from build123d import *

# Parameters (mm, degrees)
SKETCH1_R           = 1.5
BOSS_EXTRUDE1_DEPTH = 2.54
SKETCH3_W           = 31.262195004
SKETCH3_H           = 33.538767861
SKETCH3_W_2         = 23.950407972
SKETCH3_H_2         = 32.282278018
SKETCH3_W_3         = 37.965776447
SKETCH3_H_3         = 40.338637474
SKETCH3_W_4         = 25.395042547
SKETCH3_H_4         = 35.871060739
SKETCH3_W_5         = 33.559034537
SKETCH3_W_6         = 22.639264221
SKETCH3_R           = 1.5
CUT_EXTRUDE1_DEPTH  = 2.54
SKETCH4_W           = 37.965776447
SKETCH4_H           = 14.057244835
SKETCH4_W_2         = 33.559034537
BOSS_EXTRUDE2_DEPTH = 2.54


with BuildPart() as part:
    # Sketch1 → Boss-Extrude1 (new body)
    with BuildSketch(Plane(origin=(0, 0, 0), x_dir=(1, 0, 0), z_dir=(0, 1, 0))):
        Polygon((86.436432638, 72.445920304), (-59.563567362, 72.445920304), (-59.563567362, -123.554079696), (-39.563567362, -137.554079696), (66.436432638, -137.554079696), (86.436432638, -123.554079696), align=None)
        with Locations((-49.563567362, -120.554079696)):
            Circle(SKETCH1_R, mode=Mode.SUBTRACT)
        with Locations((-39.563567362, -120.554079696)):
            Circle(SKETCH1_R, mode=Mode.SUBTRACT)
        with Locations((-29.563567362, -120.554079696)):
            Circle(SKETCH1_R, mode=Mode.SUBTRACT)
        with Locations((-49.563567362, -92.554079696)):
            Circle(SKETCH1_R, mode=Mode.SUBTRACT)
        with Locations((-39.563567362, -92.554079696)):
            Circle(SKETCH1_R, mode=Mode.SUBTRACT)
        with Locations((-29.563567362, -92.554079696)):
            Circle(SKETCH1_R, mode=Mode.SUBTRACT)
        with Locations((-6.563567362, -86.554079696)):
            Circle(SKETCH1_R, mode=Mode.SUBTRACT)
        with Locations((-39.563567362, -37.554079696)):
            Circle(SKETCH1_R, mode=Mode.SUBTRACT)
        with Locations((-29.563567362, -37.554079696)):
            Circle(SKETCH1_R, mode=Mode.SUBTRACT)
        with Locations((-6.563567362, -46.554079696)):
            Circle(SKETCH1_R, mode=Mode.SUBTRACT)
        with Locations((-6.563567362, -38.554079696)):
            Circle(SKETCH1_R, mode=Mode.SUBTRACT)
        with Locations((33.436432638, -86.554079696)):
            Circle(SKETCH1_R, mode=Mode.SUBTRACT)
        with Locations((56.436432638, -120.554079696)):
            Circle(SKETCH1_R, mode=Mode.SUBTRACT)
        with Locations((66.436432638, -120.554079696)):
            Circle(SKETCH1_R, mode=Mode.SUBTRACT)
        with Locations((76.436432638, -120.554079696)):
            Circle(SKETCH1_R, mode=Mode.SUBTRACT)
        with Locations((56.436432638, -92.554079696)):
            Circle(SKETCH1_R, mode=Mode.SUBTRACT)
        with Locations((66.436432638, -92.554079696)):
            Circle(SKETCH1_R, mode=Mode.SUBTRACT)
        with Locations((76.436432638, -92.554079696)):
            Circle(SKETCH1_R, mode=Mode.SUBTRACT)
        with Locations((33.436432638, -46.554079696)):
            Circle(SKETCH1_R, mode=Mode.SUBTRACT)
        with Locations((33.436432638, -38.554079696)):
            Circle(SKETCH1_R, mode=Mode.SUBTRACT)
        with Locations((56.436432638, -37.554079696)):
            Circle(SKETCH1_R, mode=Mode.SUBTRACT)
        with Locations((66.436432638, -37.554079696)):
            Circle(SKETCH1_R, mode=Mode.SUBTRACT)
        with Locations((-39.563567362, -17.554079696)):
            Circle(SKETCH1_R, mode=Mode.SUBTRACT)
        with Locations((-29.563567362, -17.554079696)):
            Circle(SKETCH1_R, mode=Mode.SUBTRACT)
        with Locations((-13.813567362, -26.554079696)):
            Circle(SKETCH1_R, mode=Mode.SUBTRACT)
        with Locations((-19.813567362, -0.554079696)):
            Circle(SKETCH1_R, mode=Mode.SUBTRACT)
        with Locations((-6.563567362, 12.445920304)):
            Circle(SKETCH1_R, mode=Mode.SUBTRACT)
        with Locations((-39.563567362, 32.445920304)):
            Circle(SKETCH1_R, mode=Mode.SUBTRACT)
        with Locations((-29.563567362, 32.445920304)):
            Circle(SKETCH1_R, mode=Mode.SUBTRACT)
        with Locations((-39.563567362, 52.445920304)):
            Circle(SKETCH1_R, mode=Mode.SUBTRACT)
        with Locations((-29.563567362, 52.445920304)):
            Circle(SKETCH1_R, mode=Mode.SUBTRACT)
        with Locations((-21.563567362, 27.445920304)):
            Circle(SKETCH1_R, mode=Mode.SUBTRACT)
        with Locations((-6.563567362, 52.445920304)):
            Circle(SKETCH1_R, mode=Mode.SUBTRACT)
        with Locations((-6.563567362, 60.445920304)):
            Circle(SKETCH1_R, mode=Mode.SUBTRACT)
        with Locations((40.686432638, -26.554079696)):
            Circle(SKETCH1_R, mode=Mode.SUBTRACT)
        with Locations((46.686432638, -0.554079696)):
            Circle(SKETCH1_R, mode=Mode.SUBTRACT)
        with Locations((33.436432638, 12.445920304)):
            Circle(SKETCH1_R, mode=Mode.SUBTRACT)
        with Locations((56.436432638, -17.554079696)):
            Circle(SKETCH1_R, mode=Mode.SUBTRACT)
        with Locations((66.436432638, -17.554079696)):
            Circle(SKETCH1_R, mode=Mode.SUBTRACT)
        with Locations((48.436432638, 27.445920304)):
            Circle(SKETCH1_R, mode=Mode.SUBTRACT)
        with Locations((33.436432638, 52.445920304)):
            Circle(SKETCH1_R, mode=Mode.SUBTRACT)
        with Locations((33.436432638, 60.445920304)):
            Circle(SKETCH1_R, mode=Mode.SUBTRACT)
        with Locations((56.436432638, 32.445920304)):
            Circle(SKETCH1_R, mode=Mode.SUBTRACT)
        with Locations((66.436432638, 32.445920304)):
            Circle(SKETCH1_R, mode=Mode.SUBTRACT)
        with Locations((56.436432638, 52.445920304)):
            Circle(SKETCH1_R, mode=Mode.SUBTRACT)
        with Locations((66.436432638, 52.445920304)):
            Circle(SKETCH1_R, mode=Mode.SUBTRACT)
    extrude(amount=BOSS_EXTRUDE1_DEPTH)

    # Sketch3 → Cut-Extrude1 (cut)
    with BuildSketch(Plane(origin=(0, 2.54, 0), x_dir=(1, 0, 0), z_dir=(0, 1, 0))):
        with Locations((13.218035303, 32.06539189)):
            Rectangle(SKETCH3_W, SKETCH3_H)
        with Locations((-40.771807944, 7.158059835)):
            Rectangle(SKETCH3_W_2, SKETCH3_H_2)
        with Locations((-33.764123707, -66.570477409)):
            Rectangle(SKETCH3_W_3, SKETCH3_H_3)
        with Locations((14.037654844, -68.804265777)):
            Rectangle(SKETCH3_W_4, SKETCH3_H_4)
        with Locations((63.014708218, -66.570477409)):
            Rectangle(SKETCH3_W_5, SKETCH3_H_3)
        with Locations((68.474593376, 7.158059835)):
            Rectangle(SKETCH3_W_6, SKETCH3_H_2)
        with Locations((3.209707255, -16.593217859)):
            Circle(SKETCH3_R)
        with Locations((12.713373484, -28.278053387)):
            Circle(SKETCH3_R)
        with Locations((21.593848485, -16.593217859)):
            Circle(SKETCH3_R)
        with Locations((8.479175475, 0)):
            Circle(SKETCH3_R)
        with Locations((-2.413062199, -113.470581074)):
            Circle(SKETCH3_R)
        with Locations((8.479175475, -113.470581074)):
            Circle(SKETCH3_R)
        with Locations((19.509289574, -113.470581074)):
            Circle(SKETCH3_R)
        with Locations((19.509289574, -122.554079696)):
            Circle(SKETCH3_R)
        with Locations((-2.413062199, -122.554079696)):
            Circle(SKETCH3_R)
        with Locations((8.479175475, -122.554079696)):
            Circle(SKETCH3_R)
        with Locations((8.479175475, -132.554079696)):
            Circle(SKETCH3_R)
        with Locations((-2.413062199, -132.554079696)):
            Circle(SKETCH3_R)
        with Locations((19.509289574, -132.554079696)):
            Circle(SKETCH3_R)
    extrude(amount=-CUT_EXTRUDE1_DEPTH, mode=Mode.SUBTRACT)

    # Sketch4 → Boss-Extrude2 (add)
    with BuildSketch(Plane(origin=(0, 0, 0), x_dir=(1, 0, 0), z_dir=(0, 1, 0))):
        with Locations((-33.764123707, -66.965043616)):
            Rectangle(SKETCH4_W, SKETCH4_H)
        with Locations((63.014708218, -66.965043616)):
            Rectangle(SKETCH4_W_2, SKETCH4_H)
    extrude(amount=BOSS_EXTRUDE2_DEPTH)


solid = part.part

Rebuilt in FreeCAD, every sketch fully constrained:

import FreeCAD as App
import Part
import Sketcher
from FreeCAD import Vector
Q = App.Units.Quantity

doc = App.newDocument("Part")
body = doc.addObject("PartDesign::Body", "Body")

sketch1 = body.newObject("Sketcher::SketchObject", "Sketch")
sketch1.AttachmentSupport = (doc.getObject("XZ_Plane"), [""])
sketch1.MapMode = "FlatFace"
sketch1.addGeometry([
    Part.LineSegment(Vector(86.4, -72.4, 0), Vector(-59.6, -72.4, 0)),
    Part.LineSegment(Vector(-59.6, -72.4, 0), Vector(-59.6, 123.6, 0)),
    Part.LineSegment(Vector(-59.6, 123.6, 0), Vector(-39.6, 137.6, 0)),
    Part.LineSegment(Vector(-39.6, 137.6, 0), Vector(66.4, 137.6, 0)),
    Part.LineSegment(Vector(66.4, 137.6, 0), Vector(86.4, 123.6, 0)),
    Part.LineSegment(Vector(86.4, 123.6, 0), Vector(86.4, -72.4, 0)),
    Part.Circle(Vector(-49.6, 120.6, 0), Vector(0, 0, 1), 1.5),
    Part.Circle(Vector(-39.6, 120.6, 0), Vector(0, 0, 1), 1.5),
    Part.Circle(Vector(-29.6, 120.6, 0), Vector(0, 0, 1), 1.5),
    Part.Circle(Vector(-49.6, 92.6, 0), Vector(0, 0, 1), 1.5),
    Part.Circle(Vector(-39.6, 92.6, 0), Vector(0, 0, 1), 1.5),
    Part.Circle(Vector(-29.6, 92.6, 0), Vector(0, 0, 1), 1.5),
    Part.Circle(Vector(-6.6, 86.6, 0), Vector(0, 0, 1), 1.5),
    Part.Circle(Vector(-39.6, 37.6, 0), Vector(0, 0, 1), 1.5),
    Part.Circle(Vector(-29.6, 37.6, 0), Vector(0, 0, 1), 1.5),
    Part.Circle(Vector(-6.6, 46.6, 0), Vector(0, 0, 1), 1.5),
    Part.Circle(Vector(-6.6, 38.6, 0), Vector(0, 0, 1), 1.5),
    Part.Circle(Vector(33.4, 86.6, 0), Vector(0, 0, 1), 1.5),
    Part.Circle(Vector(56.4, 120.6, 0), Vector(0, 0, 1), 1.5),
    Part.Circle(Vector(66.4, 120.6, 0), Vector(0, 0, 1), 1.5),
    Part.Circle(Vector(76.4, 120.6, 0), Vector(0, 0, 1), 1.5),
    Part.Circle(Vector(56.4, 92.6, 0), Vector(0, 0, 1), 1.5),
    Part.Circle(Vector(66.4, 92.6, 0), Vector(0, 0, 1), 1.5),
    Part.Circle(Vector(76.4, 92.6, 0), Vector(0, 0, 1), 1.5),
    Part.Circle(Vector(33.4, 46.6, 0), Vector(0, 0, 1), 1.5),
    Part.Circle(Vector(33.4, 38.6, 0), Vector(0, 0, 1), 1.5),
    Part.Circle(Vector(56.4, 37.6, 0), Vector(0, 0, 1), 1.5),
    Part.Circle(Vector(66.4, 37.6, 0), Vector(0, 0, 1), 1.5),
    Part.Circle(Vector(-39.6, 17.6, 0), Vector(0, 0, 1), 1.5),
    Part.Circle(Vector(-29.6, 17.6, 0), Vector(0, 0, 1), 1.5),
    Part.Circle(Vector(-19.8, 0.6, 0), Vector(0, 0, 1), 1.5),
    Part.Circle(Vector(-13.8, 26.6, 0), Vector(0, 0, 1), 1.5),
    Part.Circle(Vector(-6.6, -12.4, 0), Vector(0, 0, 1), 1.5),
    Part.Circle(Vector(-39.6, -32.4, 0), Vector(0, 0, 1), 1.5),
    Part.Circle(Vector(-29.6, -32.4, 0), Vector(0, 0, 1), 1.5),
    Part.Circle(Vector(-21.6, -27.4, 0), Vector(0, 0, 1), 1.5),
    Part.Circle(Vector(-39.6, -52.4, 0), Vector(0, 0, 1), 1.5),
    Part.Circle(Vector(-29.6, -52.4, 0), Vector(0, 0, 1), 1.5),
    Part.Circle(Vector(-6.6, -52.4, 0), Vector(0, 0, 1), 1.5),
    Part.Circle(Vector(-6.6, -60.4, 0), Vector(0, 0, 1), 1.5),
    Part.Circle(Vector(40.7, 26.6, 0), Vector(0, 0, 1), 1.5),
    Part.Circle(Vector(33.4, -12.4, 0), Vector(0, 0, 1), 1.5),
    Part.Circle(Vector(56.4, 17.6, 0), Vector(0, 0, 1), 1.5),
    Part.Circle(Vector(66.4, 17.6, 0), Vector(0, 0, 1), 1.5),
    Part.Circle(Vector(46.7, 0.6, 0), Vector(0, 0, 1), 1.5),
    Part.Circle(Vector(33.4, -52.4, 0), Vector(0, 0, 1), 1.5),
    Part.Circle(Vector(33.4, -60.4, 0), Vector(0, 0, 1), 1.5),
    Part.Circle(Vector(48.4, -27.4, 0), Vector(0, 0, 1), 1.5),
    Part.Circle(Vector(56.4, -32.4, 0), Vector(0, 0, 1), 1.5),
    Part.Circle(Vector(66.4, -32.4, 0), Vector(0, 0, 1), 1.5),
    Part.Circle(Vector(56.4, -52.4, 0), Vector(0, 0, 1), 1.5),
    Part.Circle(Vector(66.4, -52.4, 0), Vector(0, 0, 1), 1.5),
], False)
sketch1.addConstraint([
    Sketcher.Constraint("Coincident", 0, 2, 1, 1),
    Sketcher.Constraint("Coincident", 1, 2, 2, 1),
    Sketcher.Constraint("Coincident", 2, 2, 3, 1),
    Sketcher.Constraint("Coincident", 3, 2, 4, 1),
    Sketcher.Constraint("Coincident", 4, 2, 5, 1),
    Sketcher.Constraint("Coincident", 5, 2, 0, 1),
    Sketcher.Constraint("Horizontal", 0),
    Sketcher.Constraint("Vertical", 1),
    Sketcher.Constraint("Horizontal", 3),
    Sketcher.Constraint("Vertical", 5),
    Sketcher.Constraint("Equal", 6, 7),
    Sketcher.Constraint("Equal", 7, 8),
    Sketcher.Constraint("Equal", 8, 9),
    Sketcher.Constraint("Equal", 9, 10),
    Sketcher.Constraint("Equal", 10, 11),
    Sketcher.Constraint("Equal", 11, 12),
    Sketcher.Constraint("Equal", 12, 13),
    Sketcher.Constraint("Equal", 13, 14),
    Sketcher.Constraint("Equal", 14, 15),
    Sketcher.Constraint("Equal", 15, 16),
    Sketcher.Constraint("Equal", 16, 17),
    Sketcher.Constraint("Equal", 17, 18),
    Sketcher.Constraint("Equal", 18, 19),
    Sketcher.Constraint("Equal", 19, 20),
    Sketcher.Constraint("Equal", 20, 21),
    Sketcher.Constraint("Equal", 21, 22),
    Sketcher.Constraint("Equal", 22, 23),
    Sketcher.Constraint("Equal", 23, 24),
    Sketcher.Constraint("Equal", 24, 25),
    Sketcher.Constraint("Equal", 25, 26),
    Sketcher.Constraint("Equal", 26, 27),
    Sketcher.Constraint("Equal", 27, 28),
    Sketcher.Constraint("Equal", 28, 29),
    Sketcher.Constraint("Equal", 29, 30),
    Sketcher.Constraint("Equal", 30, 31),
    Sketcher.Constraint("Equal", 31, 32),
    Sketcher.Constraint("Equal", 32, 33),
    Sketcher.Constraint("Equal", 33, 34),
    Sketcher.Constraint("Equal", 34, 35),
    Sketcher.Constraint("Equal", 35, 36),
    Sketcher.Constraint("Equal", 36, 37),
    Sketcher.Constraint("Equal", 37, 38),
    Sketcher.Constraint("Equal", 38, 39),
    Sketcher.Constraint("Equal", 39, 40),
    Sketcher.Constraint("Equal", 40, 41),
    Sketcher.Constraint("Equal", 41, 42),
    Sketcher.Constraint("Equal", 42, 43),
    Sketcher.Constraint("Equal", 43, 44),
    Sketcher.Constraint("Equal", 44, 45),
    Sketcher.Constraint("Equal", 45, 46),
    Sketcher.Constraint("Equal", 46, 47),
    Sketcher.Constraint("Equal", 47, 48),
    Sketcher.Constraint("Equal", 48, 49),
    Sketcher.Constraint("Equal", 49, 50),
    Sketcher.Constraint("Equal", 50, 51),
    Sketcher.Constraint("Horizontal", 6, 3, 7, 3),
    Sketcher.Constraint("Horizontal", 7, 3, 8, 3),
    Sketcher.Constraint("Horizontal", 9, 3, 10, 3),
    Sketcher.Constraint("Horizontal", 10, 3, 11, 3),
    Sketcher.Constraint("Horizontal", 13, 3, 14, 3),
    Sketcher.Constraint("Horizontal", 12, 3, 17, 3),
    Sketcher.Constraint("Horizontal", 8, 3, 18, 3),
    Sketcher.Constraint("Horizontal", 18, 3, 19, 3),
    Sketcher.Constraint("Horizontal", 19, 3, 20, 3),
    Sketcher.Constraint("Horizontal", 11, 3, 21, 3),
    Sketcher.Constraint("Horizontal", 21, 3, 22, 3),
    Sketcher.Constraint("Horizontal", 22, 3, 23, 3),
    Sketcher.Constraint("Horizontal", 15, 3, 24, 3),
    Sketcher.Constraint("Horizontal", 16, 3, 25, 3),
    Sketcher.Constraint("Horizontal", 14, 3, 26, 3),
    Sketcher.Constraint("Horizontal", 26, 3, 27, 3),
    Sketcher.Constraint("Horizontal", 28, 3, 29, 3),
    Sketcher.Constraint("Horizontal", 33, 3, 34, 3),
    Sketcher.Constraint("Horizontal", 36, 3, 37, 3),
    Sketcher.Constraint("Horizontal", 37, 3, 38, 3),
    Sketcher.Constraint("Horizontal", 31, 3, 40, 3),
    Sketcher.Constraint("Horizontal", 32, 3, 41, 3),
    Sketcher.Constraint("Horizontal", 29, 3, 42, 3),
    Sketcher.Constraint("Horizontal", 42, 3, 43, 3),
    Sketcher.Constraint("Horizontal", 30, 3, 44, 3),
    Sketcher.Constraint("Horizontal", 38, 3, 45, 3),
    Sketcher.Constraint("Horizontal", 39, 3, 46, 3),
    Sketcher.Constraint("Horizontal", 35, 3, 47, 3),
    Sketcher.Constraint("Horizontal", 34, 3, 48, 3),
    Sketcher.Constraint("Horizontal", 48, 3, 49, 3),
    Sketcher.Constraint("Horizontal", 45, 3, 50, 3),
    Sketcher.Constraint("Horizontal", 50, 3, 51, 3),
    Sketcher.Constraint("Horizontal", 1, 2, 4, 2),
    Sketcher.Constraint("Vertical", 6, 3, 9, 3),
    Sketcher.Constraint("Vertical", 7, 3, 10, 3),
    Sketcher.Constraint("Vertical", 8, 3, 11, 3),
    Sketcher.Constraint("Vertical", 10, 3, 13, 3),
    Sketcher.Constraint("Vertical", 11, 3, 14, 3),
    Sketcher.Constraint("Vertical", 12, 3, 15, 3),
    Sketcher.Constraint("Vertical", 15, 3, 16, 3),
    Sketcher.Constraint("Vertical", 18, 3, 21, 3),
    Sketcher.Constraint("Vertical", 19, 3, 22, 3),
    Sketcher.Constraint("Vertical", 20, 3, 23, 3),
    Sketcher.Constraint("Vertical", 17, 3, 24, 3),
    Sketcher.Constraint("Vertical", 24, 3, 25, 3),
    Sketcher.Constraint("Vertical", 21, 3, 26, 3),
    Sketcher.Constraint("Vertical", 22, 3, 27, 3),
    Sketcher.Constraint("Vertical", 13, 3, 28, 3),
    Sketcher.Constraint("Vertical", 14, 3, 29, 3),
    Sketcher.Constraint("Vertical", 16, 3, 32, 3),
    Sketcher.Constraint("Vertical", 28, 3, 33, 3),
    Sketcher.Constraint("Vertical", 29, 3, 34, 3),
    Sketcher.Constraint("Vertical", 33, 3, 36, 3),
    Sketcher.Constraint("Vertical", 34, 3, 37, 3),
    Sketcher.Constraint("Vertical", 32, 3, 38, 3),
    Sketcher.Constraint("Vertical", 38, 3, 39, 3),
    Sketcher.Constraint("Vertical", 25, 3, 41, 3),
    Sketcher.Constraint("Vertical", 26, 3, 42, 3),
    Sketcher.Constraint("Vertical", 27, 3, 43, 3),
    Sketcher.Constraint("Vertical", 41, 3, 45, 3),
    Sketcher.Constraint("Vertical", 45, 3, 46, 3),
    Sketcher.Constraint("Vertical", 42, 3, 48, 3),
    Sketcher.Constraint("Vertical", 43, 3, 49, 3),
    Sketcher.Constraint("Vertical", 48, 3, 50, 3),
    Sketcher.Constraint("Vertical", 49, 3, 51, 3),
    Sketcher.Constraint("Vertical", 36, 3, 2, 2),
    Sketcher.Constraint("Vertical", 51, 3, 3, 2),
    Sketcher.Constraint("Equal", 2, 4),
    Sketcher.Constraint("Diameter", 6, Q("3 mm")),
    Sketcher.Constraint("DistanceX", 0, 2, 0, 1, Q("146 mm")),
    Sketcher.Constraint("DistanceX", 3, 1, 3, 2, Q("106 mm")),
    Sketcher.Constraint("DistanceY", 1, 1, 1, 2, Q("196 mm")),
    Sketcher.Constraint("DistanceX", 6, 3, 7, 3, Q("10 mm")),
    Sketcher.Constraint("DistanceX", 7, 3, 8, 3, Q("10 mm")),
    Sketcher.Constraint("DistanceY", 9, 3, 6, 3, Q("28 mm")),
    Sketcher.Constraint("DistanceX", 11, 3, 12, 3, Q("23 mm")),
    Sketcher.Constraint("DistanceY", 12, 3, 11, 3, Q("6 mm")),
    Sketcher.Constraint("DistanceY", 13, 3, 10, 3, Q("55 mm")),
    Sketcher.Constraint("DistanceY", 14, 3, 15, 3, Q("9 mm")),
    Sketcher.Constraint("DistanceY", 16, 3, 15, 3, Q("8 mm")),
    Sketcher.Constraint("DistanceX", 12, 3, 17, 3, Q("40 mm")),
    Sketcher.Constraint("DistanceX", 17, 3, 18, 3, Q("23 mm")),
    Sketcher.Constraint("DistanceX", 19, 3, 20, 3, Q("10 mm")),
    Sketcher.Constraint("DistanceY", 28, 3, 13, 3, Q("20 mm")),
    Sketcher.Constraint("DistanceY", 30, 3, 29, 3, Q("17 mm")),
    Sketcher.Constraint("DistanceY", 31, 3, 16, 3, Q("12 mm")),
    Sketcher.Constraint("DistanceX", 30, 3, 31, 3, Q("6 mm")),
    Sketcher.Constraint("DistanceY", 32, 3, 30, 3, Q("13 mm")),
    Sketcher.Constraint("DistanceY", 33, 3, 30, 3, Q("33 mm")),
    Sketcher.Constraint("DistanceX", 34, 3, 35, 3, Q("8 mm")),
    Sketcher.Constraint("DistanceY", 34, 3, 35, 3, Q("5 mm")),
    Sketcher.Constraint("DistanceY", 36, 3, 33, 3, Q("20 mm")),
    Sketcher.Constraint("DistanceY", 39, 3, 38, 3, Q("8 mm")),
    Sketcher.Constraint("DistanceX", 40, 3, 44, 3, Q("6 mm")),
    Sketcher.Constraint("DistanceX", 41, 3, 47, 3, Q("15 mm")),
    Sketcher.Constraint("DistanceY", 0, 2, 36, 3, Q("20 mm")),
    Sketcher.Constraint("DistanceY", 7, 3, 2, 2, Q("17 mm")),
    Sketcher.Constraint("DistanceX", 29, 3, 30, 3, Q("9.75 mm")),
    Sketcher.Constraint("DistanceX", 25, 3, 40, 3, Q("7.25 mm")),
    Sketcher.Constraint("DistanceY", -1, 1, 6, 3, Q("120.55408 mm")),
    Sketcher.Constraint("DistanceX", 6, 3, -1, 1, Q("49.563567 mm")),
])
pad1 = body.newObject("PartDesign::Pad", "Pad")
pad1.Profile = sketch1
pad1.Length = 2.54
pad1.Reversed = True

sketch2 = body.newObject("Sketcher::SketchObject", "Sketch001")
sketch2.AttachmentSupport = (doc.getObject("XZ_Plane"), [""])
sketch2.MapMode = "FlatFace"
sketch2.AttachmentOffset = App.Placement(Vector(0, 0, -2.54), App.Rotation())
sketch2.addGeometry([
    Part.LineSegment(Vector(-2.4, -48.8, 0), Vector(-2.4, -15.3, 0)),
    Part.LineSegment(Vector(-2.4, -15.3, 0), Vector(28.8, -15.3, 0)),
    Part.LineSegment(Vector(28.8, -15.3, 0), Vector(28.8, -48.8, 0)),
    Part.LineSegment(Vector(28.8, -48.8, 0), Vector(-2.4, -48.8, 0)),
    Part.LineSegment(Vector(-52.7, -23.3, 0), Vector(-52.7, 9, 0)),
    Part.LineSegment(Vector(-52.7, 9, 0), Vector(-28.8, 9, 0)),
    Part.LineSegment(Vector(-28.8, 9, 0), Vector(-28.8, -23.3, 0)),
    Part.LineSegment(Vector(-28.8, -23.3, 0), Vector(-52.7, -23.3, 0)),
    Part.LineSegment(Vector(-52.7, 46.4, 0), Vector(-52.7, 86.7, 0)),
    Part.LineSegment(Vector(-52.7, 86.7, 0), Vector(-14.8, 86.7, 0)),
    Part.LineSegment(Vector(-14.8, 86.7, 0), Vector(-14.8, 46.4, 0)),
    Part.LineSegment(Vector(-14.8, 46.4, 0), Vector(-52.7, 46.4, 0)),
    Part.LineSegment(Vector(1.3, 50.9, 0), Vector(1.3, 86.7, 0)),
    Part.LineSegment(Vector(1.3, 86.7, 0), Vector(26.7, 86.7, 0)),
    Part.LineSegment(Vector(26.7, 86.7, 0), Vector(26.7, 50.9, 0)),
    Part.LineSegment(Vector(26.7, 50.9, 0), Vector(1.3, 50.9, 0)),
    Part.LineSegment(Vector(46.2, 46.4, 0), Vector(46.2, 86.7, 0)),
    Part.LineSegment(Vector(46.2, 86.7, 0), Vector(79.8, 86.7, 0)),
    Part.LineSegment(Vector(79.8, 86.7, 0), Vector(79.8, 46.4, 0)),
    Part.LineSegment(Vector(79.8, 46.4, 0), Vector(46.2, 46.4, 0)),
    Part.LineSegment(Vector(57.2, -23.3, 0), Vector(57.2, 9, 0)),
    Part.LineSegment(Vector(57.2, 9, 0), Vector(79.8, 9, 0)),
    Part.LineSegment(Vector(79.8, 9, 0), Vector(79.8, -23.3, 0)),
    Part.LineSegment(Vector(79.8, -23.3, 0), Vector(57.2, -23.3, 0)),
    Part.Circle(Vector(3.2, 16.6, 0), Vector(0, 0, 1), 1.5),
    Part.Circle(Vector(12.7, 28.3, 0), Vector(0, 0, 1), 1.5),
    Part.Circle(Vector(21.6, 16.6, 0), Vector(0, 0, 1), 1.5),
    Part.Circle(Vector(8.5, 0, 0), Vector(0, 0, 1), 1.5),
    Part.Circle(Vector(-2.4, 113.5, 0), Vector(0, 0, 1), 1.5),
    Part.Circle(Vector(8.5, 113.5, 0), Vector(0, 0, 1), 1.5),
    Part.Circle(Vector(19.5, 113.5, 0), Vector(0, 0, 1), 1.5),
    Part.Circle(Vector(19.5, 122.6, 0), Vector(0, 0, 1), 1.5),
    Part.Circle(Vector(-2.4, 122.6, 0), Vector(0, 0, 1), 1.5),
    Part.Circle(Vector(8.5, 122.6, 0), Vector(0, 0, 1), 1.5),
    Part.Circle(Vector(8.5, 132.6, 0), Vector(0, 0, 1), 1.5),
    Part.Circle(Vector(-2.4, 132.6, 0), Vector(0, 0, 1), 1.5),
    Part.Circle(Vector(19.5, 132.6, 0), Vector(0, 0, 1), 1.5),
], False)
sketch2.addConstraint([
    Sketcher.Constraint("Coincident", 0, 2, 1, 1),
    Sketcher.Constraint("Coincident", 1, 2, 2, 1),
    Sketcher.Constraint("Coincident", 2, 2, 3, 1),
    Sketcher.Constraint("Coincident", 3, 2, 0, 1),
    Sketcher.Constraint("Coincident", 4, 2, 5, 1),
    Sketcher.Constraint("Coincident", 5, 2, 6, 1),
    Sketcher.Constraint("Coincident", 6, 2, 7, 1),
    Sketcher.Constraint("Coincident", 7, 2, 4, 1),
    Sketcher.Constraint("Coincident", 8, 2, 9, 1),
    Sketcher.Constraint("Coincident", 9, 2, 10, 1),
    Sketcher.Constraint("Coincident", 10, 2, 11, 1),
    Sketcher.Constraint("Coincident", 11, 2, 8, 1),
    Sketcher.Constraint("Coincident", 12, 2, 13, 1),
    Sketcher.Constraint("Coincident", 13, 2, 14, 1),
    Sketcher.Constraint("Coincident", 14, 2, 15, 1),
    Sketcher.Constraint("Coincident", 15, 2, 12, 1),
    Sketcher.Constraint("Coincident", 16, 2, 17, 1),
    Sketcher.Constraint("Coincident", 17, 2, 18, 1),
    Sketcher.Constraint("Coincident", 18, 2, 19, 1),
    Sketcher.Constraint("Coincident", 19, 2, 16, 1),
    Sketcher.Constraint("Coincident", 20, 2, 21, 1),
    Sketcher.Constraint("Coincident", 21, 2, 22, 1),
    Sketcher.Constraint("Coincident", 22, 2, 23, 1),
    Sketcher.Constraint("Coincident", 23, 2, 20, 1),
    Sketcher.Constraint("Vertical", 0),
    Sketcher.Constraint("Horizontal", 1),
    Sketcher.Constraint("Vertical", 2),
    Sketcher.Constraint("Horizontal", 3),
    Sketcher.Constraint("Vertical", 4),
    Sketcher.Constraint("Horizontal", 5),
    Sketcher.Constraint("Vertical", 6),
    Sketcher.Constraint("Horizontal", 7),
    Sketcher.Constraint("Vertical", 8),
    Sketcher.Constraint("Horizontal", 9),
    Sketcher.Constraint("Vertical", 10),
    Sketcher.Constraint("Horizontal", 11),
    Sketcher.Constraint("Vertical", 12),
    Sketcher.Constraint("Horizontal", 13),
    Sketcher.Constraint("Vertical", 14),
    Sketcher.Constraint("Horizontal", 15),
    Sketcher.Constraint("Vertical", 16),
    Sketcher.Constraint("Horizontal", 17),
    Sketcher.Constraint("Vertical", 18),
    Sketcher.Constraint("Horizontal", 19),
    Sketcher.Constraint("Vertical", 20),
    Sketcher.Constraint("Horizontal", 21),
    Sketcher.Constraint("Vertical", 22),
    Sketcher.Constraint("Horizontal", 23),
    Sketcher.Constraint("Equal", 24, 25),
    Sketcher.Constraint("Equal", 25, 26),
    Sketcher.Constraint("Equal", 26, 27),
    Sketcher.Constraint("Equal", 27, 28),
    Sketcher.Constraint("Equal", 28, 29),
    Sketcher.Constraint("Equal", 29, 30),
    Sketcher.Constraint("Equal", 30, 31),
    Sketcher.Constraint("Equal", 31, 32),
    Sketcher.Constraint("Equal", 32, 33),
    Sketcher.Constraint("Equal", 33, 34),
    Sketcher.Constraint("Equal", 34, 35),
    Sketcher.Constraint("Equal", 35, 36),
    Sketcher.Constraint("PointOnObject", 27, 3, -1),
    Sketcher.Constraint("Horizontal", 24, 3, 26, 3),
    Sketcher.Constraint("Horizontal", 28, 3, 29, 3),
    Sketcher.Constraint("Horizontal", 29, 3, 30, 3),
    Sketcher.Constraint("Horizontal", 31, 3, 32, 3),
    Sketcher.Constraint("Horizontal", 32, 3, 33, 3),
    Sketcher.Constraint("Horizontal", 34, 3, 35, 3),
    Sketcher.Constraint("Horizontal", 35, 3, 36, 3),
    Sketcher.Constraint("Horizontal", 9, 2, 12, 2),
    Sketcher.Constraint("Horizontal", 13, 2, 16, 2),
    Sketcher.Constraint("Horizontal", 11, 2, 18, 2),
    Sketcher.Constraint("Horizontal", 5, 2, 20, 2),
    Sketcher.Constraint("Horizontal", 7, 2, 22, 2),
    Sketcher.Constraint("Vertical", 27, 3, 29, 3),
    Sketcher.Constraint("Vertical", 30, 3, 31, 3),
    Sketcher.Constraint("Vertical", 28, 3, 32, 3),
    Sketcher.Constraint("Vertical", 29, 3, 33, 3),
    Sketcher.Constraint("Vertical", 33, 3, 34, 3),
    Sketcher.Constraint("Vertical", 32, 3, 35, 3),
    Sketcher.Constraint("Vertical", 31, 3, 36, 3),
    Sketcher.Constraint("Vertical", 35, 3, 0, 2),
    Sketcher.Constraint("Vertical", 7, 2, 8, 2),
    Sketcher.Constraint("Vertical", 18, 2, 21, 2),
    Sketcher.Constraint("Diameter", 24, Q("3 mm")),
    Sketcher.Constraint("DistanceY", 33, 3, 34, 3, Q("10 mm")),
    Sketcher.Constraint("DistanceX", 29, 3, 13, 2, Q("18.256001 mm")),
    Sketcher.Constraint("DistanceY", 4, 1, 4, 2, Q("32.282278 mm")),
    Sketcher.Constraint("DistanceY", 12, 1, 12, 2, Q("35.871061 mm")),
    Sketcher.Constraint("DistanceY", 6, 2, -1, 1, Q("23.299199 mm")),
    Sketcher.Constraint("DistanceX", 27, 3, 25, 3, Q("4.234198 mm")),
    Sketcher.Constraint("DistanceY", 30, 3, 31, 3, Q("9.083499 mm")),
    Sketcher.Constraint("DistanceX", 30, 3, 16, 2, Q("26.725901 mm")),
    Sketcher.Constraint("DistanceX", 1, 1, 1, 2, Q("31.262195 mm")),
    Sketcher.Constraint("DistanceX", 5, 1, 5, 2, Q("23.950408 mm")),
    Sketcher.Constraint("DistanceX", 9, 1, 9, 2, Q("37.965776 mm")),
    Sketcher.Constraint("DistanceX", 13, 1, 13, 2, Q("25.395043 mm")),
    Sketcher.Constraint("DistanceX", 17, 1, 17, 2, Q("33.559035 mm")),
    Sketcher.Constraint("DistanceX", 21, 1, 21, 2, Q("22.639264 mm")),
    Sketcher.Constraint("DistanceY", 0, 1, 0, 2, Q("33.538768 mm")),
    Sketcher.Constraint("DistanceY", 8, 1, 8, 2, Q("40.338637 mm")),
    Sketcher.Constraint("DistanceX", -1, 1, 26, 3, Q("21.593848 mm")),
    Sketcher.Constraint("DistanceY", -1, 1, 28, 3, Q("113.470581 mm")),
    Sketcher.Constraint("DistanceX", -1, 1, 30, 3, Q("19.50929 mm")),
    Sketcher.Constraint("DistanceX", 4, 2, -1, 1, Q("52.747012 mm")),
    Sketcher.Constraint("DistanceY", -1, 1, 10, 2, Q("46.401159 mm")),
    Sketcher.Constraint("DistanceX", 24, 3, 26, 3, Q("18.384141 mm")),
    Sketcher.Constraint("DistanceX", 24, 3, 27, 3, Q("5.269468 mm")),
    Sketcher.Constraint("DistanceX", 28, 3, 24, 3, Q("5.622769 mm")),
    Sketcher.Constraint("DistanceY", 26, 3, 31, 3, Q("105.960862 mm")),
    Sketcher.Constraint("DistanceY", 0, 2, 25, 3, Q("43.574061 mm")),
    Sketcher.Constraint("DistanceY", 0, 2, 28, 3, Q("128.766589 mm")),
])
pocket1 = body.newObject("PartDesign::Pocket", "Pocket")
pocket1.Profile = sketch2
pocket1.Length = 2.54
pocket1.Reversed = True

sketch3 = body.newObject("Sketcher::SketchObject", "Sketch002")
sketch3.AttachmentSupport = (doc.getObject("XZ_Plane"), [""])
sketch3.MapMode = "FlatFace"
sketch3.addGeometry([
    Part.LineSegment(Vector(-53, 60, 0), Vector(-53, 74, 0)),
    Part.LineSegment(Vector(-53, 74, 0), Vector(-15, 74, 0)),
    Part.LineSegment(Vector(-15, 74, 0), Vector(-15, 60, 0)),
    Part.LineSegment(Vector(-15, 60, 0), Vector(-53, 60, 0)),
    Part.LineSegment(Vector(46, 60, 0), Vector(46, 74, 0)),
    Part.LineSegment(Vector(46, 74, 0), Vector(80, 74, 0)),
    Part.LineSegment(Vector(80, 74, 0), Vector(80, 60, 0)),
    Part.LineSegment(Vector(80, 60, 0), Vector(46, 60, 0)),
], False)
sketch3.addConstraint([
    Sketcher.Constraint("Coincident", 0, 2, 1, 1),
    Sketcher.Constraint("Coincident", 1, 2, 2, 1),
    Sketcher.Constraint("Coincident", 2, 2, 3, 1),
    Sketcher.Constraint("Coincident", 3, 2, 0, 1),
    Sketcher.Constraint("Coincident", 4, 2, 5, 1),
    Sketcher.Constraint("Coincident", 5, 2, 6, 1),
    Sketcher.Constraint("Coincident", 6, 2, 7, 1),
    Sketcher.Constraint("Coincident", 7, 2, 4, 1),
    Sketcher.Constraint("Vertical", 0),
    Sketcher.Constraint("Horizontal", 1),
    Sketcher.Constraint("Vertical", 2),
    Sketcher.Constraint("Horizontal", 3),
    Sketcher.Constraint("Vertical", 4),
    Sketcher.Constraint("Horizontal", 5),
    Sketcher.Constraint("Vertical", 6),
    Sketcher.Constraint("Horizontal", 7),
    Sketcher.Constraint("Horizontal", 1, 2, 4, 2),
    Sketcher.Constraint("Horizontal", 3, 2, 6, 2),
    Sketcher.Constraint("DistanceX", 1, 1, 1, 2, Q("37.965776 mm")),
    Sketcher.Constraint("DistanceX", 5, 1, 5, 2, Q("33.559035 mm")),
    Sketcher.Constraint("DistanceY", 0, 1, 0, 2, Q("14.057245 mm")),
    Sketcher.Constraint("DistanceX", 0, 2, -1, 1, Q("52.747012 mm")),
    Sketcher.Constraint("DistanceY", -1, 1, 2, 2, Q("59.936421 mm")),
    Sketcher.Constraint("DistanceX", -1, 1, 4, 2, Q("46.235191 mm")),
])
pad2 = body.newObject("PartDesign::Pad", "Pad001")
pad2.Profile = sketch3
pad2.Length = 2.54
pad2.Reversed = True

doc.recompute()
